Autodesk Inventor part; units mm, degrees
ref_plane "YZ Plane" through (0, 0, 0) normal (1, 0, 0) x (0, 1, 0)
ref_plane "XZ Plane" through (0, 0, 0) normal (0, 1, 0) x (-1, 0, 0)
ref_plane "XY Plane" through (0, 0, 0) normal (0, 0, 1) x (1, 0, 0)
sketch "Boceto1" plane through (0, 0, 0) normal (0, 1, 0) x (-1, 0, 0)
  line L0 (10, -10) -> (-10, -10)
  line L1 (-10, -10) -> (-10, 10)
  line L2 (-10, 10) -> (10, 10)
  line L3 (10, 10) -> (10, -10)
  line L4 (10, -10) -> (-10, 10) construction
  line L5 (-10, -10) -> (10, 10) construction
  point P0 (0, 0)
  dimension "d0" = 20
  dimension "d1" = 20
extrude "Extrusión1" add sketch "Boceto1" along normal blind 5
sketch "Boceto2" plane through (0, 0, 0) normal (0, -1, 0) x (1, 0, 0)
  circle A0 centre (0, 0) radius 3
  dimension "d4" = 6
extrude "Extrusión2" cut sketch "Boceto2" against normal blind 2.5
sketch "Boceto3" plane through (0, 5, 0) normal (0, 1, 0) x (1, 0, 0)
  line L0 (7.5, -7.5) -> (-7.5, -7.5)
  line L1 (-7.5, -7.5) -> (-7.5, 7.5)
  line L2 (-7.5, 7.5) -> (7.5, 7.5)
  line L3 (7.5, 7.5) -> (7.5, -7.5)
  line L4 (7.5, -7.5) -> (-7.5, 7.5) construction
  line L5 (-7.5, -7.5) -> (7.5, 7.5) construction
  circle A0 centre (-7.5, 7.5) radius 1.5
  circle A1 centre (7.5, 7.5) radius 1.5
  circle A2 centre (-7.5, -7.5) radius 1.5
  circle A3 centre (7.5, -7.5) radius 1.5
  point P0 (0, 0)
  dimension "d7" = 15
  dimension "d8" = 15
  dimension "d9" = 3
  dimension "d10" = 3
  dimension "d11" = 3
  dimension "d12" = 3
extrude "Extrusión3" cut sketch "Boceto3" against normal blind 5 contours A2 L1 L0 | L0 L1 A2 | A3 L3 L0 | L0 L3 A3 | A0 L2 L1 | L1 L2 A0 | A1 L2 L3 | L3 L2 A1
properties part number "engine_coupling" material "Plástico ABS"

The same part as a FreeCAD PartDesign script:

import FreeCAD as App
import Part
import Sketcher
from FreeCAD import Vector

doc = App.newDocument("Part")
body = doc.addObject("PartDesign::Body", "Body")

# Sketch on XZ plane
sketch1 = doc.addObject("Sketcher::SketchObject", "Sketch")
body.addObject(sketch1)
sketch1.AttachmentSupport = (doc.XZ_Plane, [""])
sketch1.MapMode = "FlatFace"
sketch1.addGeometry(Part.LineSegment(Vector(10, -10, 0), Vector(-10, -10, 0)), False)
sketch1.addGeometry(Part.LineSegment(Vector(-10, -10, 0), Vector(-10, 10, 0)), False)
sketch1.addGeometry(Part.LineSegment(Vector(-10, 10, 0), Vector(10, 10, 0)), False)
sketch1.addGeometry(Part.LineSegment(Vector(10, 10, 0), Vector(10, -10, 0)), False)
sketch1.addConstraint(Sketcher.Constraint("Coincident", 0, 2, 1, 1))
sketch1.addConstraint(Sketcher.Constraint("Coincident", 1, 2, 2, 1))
sketch1.addConstraint(Sketcher.Constraint("Coincident", 2, 2, 3, 1))
sketch1.addConstraint(Sketcher.Constraint("Coincident", 3, 2, 0, 1))
sketch1.addConstraint(Sketcher.Constraint("Horizontal", 0))
sketch1.addConstraint(Sketcher.Constraint("Vertical", 1))
sketch1.addConstraint(Sketcher.Constraint("Horizontal", 2))
sketch1.addConstraint(Sketcher.Constraint("Vertical", 3))
sketch1.addConstraint(Sketcher.Constraint("Symmetric", 0, 2, 2, 2, -1, 1))
sketch1.addConstraint(Sketcher.Constraint("Equal", 2, 1))
sketch1.addConstraint(Sketcher.Constraint("DistanceX", 0, 2, 0, 1, 20.0))
pad1 = doc.addObject("PartDesign::Pad", "Pad")
body.addObject(pad1)
pad1.Profile = sketch1
pad1.Length = 5
pad1.Reversed = True

# Sketch on XZ plane
sketch2 = doc.addObject("Sketcher::SketchObject", "Sketch001")
body.addObject(sketch2)
sketch2.AttachmentSupport = (doc.XZ_Plane, [""])
sketch2.MapMode = "FlatFace"
sketch2.addGeometry(Part.Circle(Vector(0, 0, 0), Vector(0, 0, 1), 3), False)
sketch2.addConstraint(Sketcher.Constraint("Coincident", 0, 3, -1, 1))
sketch2.addConstraint(Sketcher.Constraint("Diameter", 0, 6.0))
pocket1 = doc.addObject("PartDesign::Pocket", "Pocket")
body.addObject(pocket1)
pocket1.Profile = sketch2
pocket1.Length = 2.5

# Sketch on XZ plane
sketch3 = doc.addObject("Sketcher::SketchObject", "Sketch002")
body.addObject(sketch3)
sketch3.AttachmentSupport = (doc.XZ_Plane, [""])
sketch3.MapMode = "FlatFace"
sketch3.AttachmentOffset = App.Placement(Vector(0, 0, -5), App.Rotation())
sketch3.addGeometry(Part.Circle(Vector(-7.5, 7.5, 0), Vector(0, 0, 1), 1.5), False)
sketch3.addGeometry(Part.Circle(Vector(7.5, 7.5, 0), Vector(0, 0, 1), 1.5), False)
sketch3.addGeometry(Part.Circle(Vector(-7.5, -7.5, 0), Vector(0, 0, 1), 1.5), False)
sketch3.addGeometry(Part.Circle(Vector(7.5, -7.5, 0), Vector(0, 0, 1), 1.5), False)
sketch3.addConstraint(Sketcher.Constraint("Equal", 0, 1))
sketch3.addConstraint(Sketcher.Constraint("Equal", 1, 2))
sketch3.addConstraint(Sketcher.Constraint("Equal", 2, 3))
sketch3.addConstraint(Sketcher.Constraint("Symmetric", 1, 3, 2, 3, -1, 1))
sketch3.addConstraint(Sketcher.Constraint("Symmetric", 0, 3, 3, 3, -1, 1))
sketch3.addConstraint(Sketcher.Constraint("Symmetric", 0, 3, 1, 3, -2))
sketch3.addConstraint(Sketcher.Constraint("Diameter", 0, 3.0))
sketch3.addConstraint(Sketcher.Constraint("DistanceX", 0, 3, 1, 3, 15.0))
sketch3.addConstraint(Sketcher.Constraint("DistanceY", 2, 3, 0, 3, 15.0))
pocket2 = doc.addObject("PartDesign::Pocket", "Pocket001")
body.addObject(pocket2)
pocket2.Profile = sketch3
pocket2.Length = 5
pocket2.Reversed = True

doc.recompute()
